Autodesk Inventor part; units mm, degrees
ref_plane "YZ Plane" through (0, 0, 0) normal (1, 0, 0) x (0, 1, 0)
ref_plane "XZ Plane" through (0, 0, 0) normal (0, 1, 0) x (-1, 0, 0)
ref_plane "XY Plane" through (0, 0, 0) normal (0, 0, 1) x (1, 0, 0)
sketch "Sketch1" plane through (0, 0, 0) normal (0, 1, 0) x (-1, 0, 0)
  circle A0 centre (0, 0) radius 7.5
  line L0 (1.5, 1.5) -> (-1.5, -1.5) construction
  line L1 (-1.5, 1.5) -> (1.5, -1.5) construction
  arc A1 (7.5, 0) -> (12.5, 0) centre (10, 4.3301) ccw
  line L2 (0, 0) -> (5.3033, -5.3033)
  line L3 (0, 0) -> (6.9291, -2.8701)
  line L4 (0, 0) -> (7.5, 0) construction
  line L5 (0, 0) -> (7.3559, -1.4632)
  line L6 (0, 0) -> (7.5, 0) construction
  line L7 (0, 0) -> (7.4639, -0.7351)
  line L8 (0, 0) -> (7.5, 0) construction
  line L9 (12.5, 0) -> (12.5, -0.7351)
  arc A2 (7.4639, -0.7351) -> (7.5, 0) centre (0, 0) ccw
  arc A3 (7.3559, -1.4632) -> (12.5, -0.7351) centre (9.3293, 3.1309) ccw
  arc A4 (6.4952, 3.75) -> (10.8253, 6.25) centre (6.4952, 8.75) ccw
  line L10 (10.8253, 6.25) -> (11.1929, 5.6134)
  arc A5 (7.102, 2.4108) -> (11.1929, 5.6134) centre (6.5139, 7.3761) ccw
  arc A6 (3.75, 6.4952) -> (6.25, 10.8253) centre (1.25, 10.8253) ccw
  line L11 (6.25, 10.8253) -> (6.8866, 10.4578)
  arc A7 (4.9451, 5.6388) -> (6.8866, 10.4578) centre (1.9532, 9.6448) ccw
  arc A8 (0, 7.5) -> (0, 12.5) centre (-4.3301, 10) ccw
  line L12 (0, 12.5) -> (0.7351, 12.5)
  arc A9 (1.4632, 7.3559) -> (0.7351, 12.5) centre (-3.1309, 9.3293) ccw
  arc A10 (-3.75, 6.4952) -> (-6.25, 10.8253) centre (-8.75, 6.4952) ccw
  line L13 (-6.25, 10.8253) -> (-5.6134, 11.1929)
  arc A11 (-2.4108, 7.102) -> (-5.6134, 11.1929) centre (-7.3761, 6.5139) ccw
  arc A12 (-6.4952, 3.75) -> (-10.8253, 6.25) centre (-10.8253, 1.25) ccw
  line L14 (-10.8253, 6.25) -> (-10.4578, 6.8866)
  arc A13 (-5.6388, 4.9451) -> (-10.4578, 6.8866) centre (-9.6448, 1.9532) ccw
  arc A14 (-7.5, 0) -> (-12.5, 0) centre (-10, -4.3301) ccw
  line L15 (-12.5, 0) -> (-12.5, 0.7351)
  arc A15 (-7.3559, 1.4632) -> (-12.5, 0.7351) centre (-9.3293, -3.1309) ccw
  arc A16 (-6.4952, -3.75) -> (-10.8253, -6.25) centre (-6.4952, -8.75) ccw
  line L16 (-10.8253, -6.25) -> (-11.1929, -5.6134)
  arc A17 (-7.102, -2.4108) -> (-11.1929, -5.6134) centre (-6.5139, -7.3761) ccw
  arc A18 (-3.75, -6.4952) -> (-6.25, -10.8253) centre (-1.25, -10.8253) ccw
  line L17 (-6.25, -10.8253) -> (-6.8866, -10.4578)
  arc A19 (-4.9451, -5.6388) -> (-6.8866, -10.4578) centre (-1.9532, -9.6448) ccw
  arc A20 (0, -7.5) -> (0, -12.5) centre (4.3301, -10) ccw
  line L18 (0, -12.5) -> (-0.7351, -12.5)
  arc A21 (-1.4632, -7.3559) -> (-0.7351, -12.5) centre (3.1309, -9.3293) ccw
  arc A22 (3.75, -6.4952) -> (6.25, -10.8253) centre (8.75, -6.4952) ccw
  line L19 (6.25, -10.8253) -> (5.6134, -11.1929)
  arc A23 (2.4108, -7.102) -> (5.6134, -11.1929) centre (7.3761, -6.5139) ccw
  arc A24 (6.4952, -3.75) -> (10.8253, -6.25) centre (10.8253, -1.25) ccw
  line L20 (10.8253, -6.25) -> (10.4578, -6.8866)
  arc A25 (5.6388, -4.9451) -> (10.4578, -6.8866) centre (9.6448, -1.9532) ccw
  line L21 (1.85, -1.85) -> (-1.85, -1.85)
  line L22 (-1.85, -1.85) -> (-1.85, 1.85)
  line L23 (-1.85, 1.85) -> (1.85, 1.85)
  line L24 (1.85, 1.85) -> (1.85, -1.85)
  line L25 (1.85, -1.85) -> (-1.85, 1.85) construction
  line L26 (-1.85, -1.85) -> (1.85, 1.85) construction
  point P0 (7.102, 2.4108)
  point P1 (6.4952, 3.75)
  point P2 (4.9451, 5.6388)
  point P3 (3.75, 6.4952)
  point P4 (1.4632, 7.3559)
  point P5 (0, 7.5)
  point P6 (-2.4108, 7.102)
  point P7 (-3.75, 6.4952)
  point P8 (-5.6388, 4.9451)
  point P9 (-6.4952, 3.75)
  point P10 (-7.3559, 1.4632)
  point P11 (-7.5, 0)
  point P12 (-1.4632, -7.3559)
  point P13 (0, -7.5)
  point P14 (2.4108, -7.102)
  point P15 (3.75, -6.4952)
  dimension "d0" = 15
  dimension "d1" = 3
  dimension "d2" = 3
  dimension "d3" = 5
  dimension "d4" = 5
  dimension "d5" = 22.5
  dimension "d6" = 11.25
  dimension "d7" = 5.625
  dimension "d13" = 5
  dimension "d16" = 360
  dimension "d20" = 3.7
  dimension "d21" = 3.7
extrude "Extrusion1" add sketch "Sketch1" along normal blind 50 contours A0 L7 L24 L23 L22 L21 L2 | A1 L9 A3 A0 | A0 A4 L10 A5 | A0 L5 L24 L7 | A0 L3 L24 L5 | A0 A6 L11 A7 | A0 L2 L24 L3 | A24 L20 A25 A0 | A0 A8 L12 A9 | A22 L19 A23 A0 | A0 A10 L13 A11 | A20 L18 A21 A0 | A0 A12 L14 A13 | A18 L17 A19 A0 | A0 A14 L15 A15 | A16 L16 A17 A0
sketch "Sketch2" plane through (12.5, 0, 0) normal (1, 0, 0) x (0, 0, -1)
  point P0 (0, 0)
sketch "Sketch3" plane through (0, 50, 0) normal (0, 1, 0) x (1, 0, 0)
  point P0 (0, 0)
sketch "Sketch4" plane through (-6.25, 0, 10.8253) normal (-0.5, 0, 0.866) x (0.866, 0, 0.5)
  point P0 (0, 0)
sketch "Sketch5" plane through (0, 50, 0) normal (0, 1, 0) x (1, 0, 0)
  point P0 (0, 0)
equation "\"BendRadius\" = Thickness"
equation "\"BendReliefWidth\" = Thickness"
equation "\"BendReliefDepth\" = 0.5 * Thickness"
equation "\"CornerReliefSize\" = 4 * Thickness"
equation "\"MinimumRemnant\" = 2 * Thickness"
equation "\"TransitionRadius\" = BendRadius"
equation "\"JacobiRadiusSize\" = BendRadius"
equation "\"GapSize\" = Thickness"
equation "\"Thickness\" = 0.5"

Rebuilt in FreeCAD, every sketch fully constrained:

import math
import FreeCAD as App
import Part
import Sketcher

V = App.Vector


def add_polygon(sketch, points):
    """Adds a closed chain of lines whose ends are joined by coincident constraints."""
    first, n = sketch.GeometryCount, len(points)
    for a, b in zip(points, points[1:] + points[:1]):
        sketch.addGeometry(Part.LineSegment(App.Vector(*a, 0), App.Vector(*b, 0)), False)
    for i in range(n):
        sketch.addConstraint(Sketcher.Constraint("Coincident", first + i, 2, first + (i + 1) % n, 1))

doc = App.newDocument("Part")
body = doc.addObject("PartDesign::Body", "Body")

# Sketch on XZ plane
sketch1 = body.newObject("Sketcher::SketchObject", "Sketch")
sketch1.AttachmentSupport = (doc.getObject("XZ_Plane"), [""])
sketch1.MapMode = "FlatFace"
sketch1.addGeometry(Part.ArcOfCircle(Part.Circle(V(0, 0, 0), V(0, 0, 1), 7.5), math.radians(-138.749971), math.radians(-119.999964)), False)  # 0
sketch1.addGeometry(Part.ArcOfCircle(Part.Circle(V(-9.6448, -1.9532, 0), V(0, 0, 1), 4.99995), math.radians(-99.357954), math.radians(-36.754388)), False)  # 1
sketch1.addGeometry(Part.LineSegment(V(-10.4578, -6.8866, 0), V(-10.8253, -6.25, 0)), False)  # 2
sketch1.addGeometry(Part.ArcOfCircle(Part.Circle(V(-10.8253, -1.25, 0), V(0, 0, 1), 4.999977), math.radians(-90), math.radians(-30.000155)), False)  # 3
sketch1.addGeometry(Part.ArcOfCircle(Part.Circle(V(0, 0, 0), V(0, 0, 1), 7.5), math.radians(-168.749846), math.radians(-150.000036)), False)  # 4
sketch1.addGeometry(Part.ArcOfCircle(Part.Circle(V(-9.3293, 3.1309, 0), V(0, 0, 1), 5.000006), math.radians(-129.356892), math.radians(-66.754013)), False)  # 5
sketch1.addGeometry(Part.LineSegment(V(-12.5, -0.7351, 0), V(-12.5, 0, 0)), False)  # 6
sketch1.addGeometry(Part.ArcOfCircle(Part.Circle(V(-10, 4.3301, 0), V(0, 0, 1), 4.999977), math.radians(-120.000155), math.radians(-59.999845)), False)  # 7
sketch1.addGeometry(Part.ArcOfCircle(Part.Circle(V(0, 0, 0), V(0, 0, 1), 7.5), math.radians(161.25003), math.radians(180)), False)  # 8
sketch1.addGeometry(Part.ArcOfCircle(Part.Circle(V(-6.5139, 7.3761, 0), V(0, 0, 1), 5.000007), math.radians(-159.357314), math.radians(-96.754757)), False)  # 9
sketch1.addGeometry(Part.LineSegment(V(-11.1929, 5.6134, 0), V(-10.8253, 6.25, 0)), False)  # 10
sketch1.addGeometry(Part.ArcOfCircle(Part.Circle(V(-6.4952, 8.75, 0), V(0, 0, 1), 5), math.radians(-149.999845), math.radians(-90)), False)  # 11
sketch1.addGeometry(Part.ArcOfCircle(Part.Circle(V(0, 0, 0), V(0, 0, 1), 7.5), math.radians(131.250029), math.radians(150.000036)), False)  # 12
sketch1.addGeometry(Part.ArcOfCircle(Part.Circle(V(-1.9532, 9.6448, 0), V(0, 0, 1), 4.99995), math.radians(170.642046), math.radians(233.245612)), False)  # 13
sketch1.addGeometry(Part.LineSegment(V(-6.8866, 10.4578, 0), V(-6.25, 10.8253, 0)), False)  # 14
sketch1.addGeometry(Part.ArcOfCircle(Part.Circle(V(-1.25, 10.8253, 0), V(0, 0, 1), 4.999977), math.radians(180), math.radians(239.999845)), False)  # 15
sketch1.addGeometry(Part.ArcOfCircle(Part.Circle(V(0, 0, 0), V(0, 0, 1), 7.5), math.radians(101.250154), math.radians(119.999964)), False)  # 16
sketch1.addGeometry(Part.ArcOfCircle(Part.Circle(V(3.1309, 9.3293, 0), V(0, 0, 1), 5.000006), math.radians(140.643108), math.radians(203.245987)), False)  # 17
sketch1.addGeometry(Part.LineSegment(V(-0.7351, 12.5, 0), V(0, 12.5, 0)), False)  # 18
sketch1.addGeometry(Part.ArcOfCircle(Part.Circle(V(4.3301, 10, 0), V(0, 0, 1), 4.999977), math.radians(149.999845), math.radians(210.000155)), False)  # 19
sketch1.addGeometry(Part.ArcOfCircle(Part.Circle(V(0, 0, 0), V(0, 0, 1), 7.5), math.radians(71.25003), math.radians(90)), False)  # 20
sketch1.addGeometry(Part.ArcOfCircle(Part.Circle(V(7.3761, 6.5139, 0), V(0, 0, 1), 5.000007), math.radians(110.642686), math.radians(173.245243)), False)  # 21
sketch1.addGeometry(Part.LineSegment(V(5.6134, 11.1929, 0), V(6.25, 10.8253, 0)), False)  # 22
sketch1.addGeometry(Part.ArcOfCircle(Part.Circle(V(8.75, 6.4952, 0), V(0, 0, 1), 5), math.radians(120.000155), math.radians(180)), False)  # 23
sketch1.addGeometry(Part.ArcOfCircle(Part.Circle(V(0, 0, 0), V(0, 0, 1), 7.5), math.radians(41.250029), math.radians(60.000036)), False)  # 24
sketch1.addGeometry(Part.ArcOfCircle(Part.Circle(V(9.6448, 1.9532, 0), V(0, 0, 1), 4.99995), math.radians(80.642046), math.radians(143.245612)), False)  # 25
sketch1.addGeometry(Part.LineSegment(V(10.4578, 6.8866, 0), V(10.8253, 6.25, 0)), False)  # 26
sketch1.addGeometry(Part.ArcOfCircle(Part.Circle(V(10.8253, 1.25, 0), V(0, 0, 1), 4.999977), math.radians(90), math.radians(149.999845)), False)  # 27
sketch1.addGeometry(Part.ArcOfCircle(Part.Circle(V(0, 0, 0), V(0, 0, 1), 7.5), math.radians(11.250154), math.radians(29.999964)), False)  # 28
sketch1.addGeometry(Part.ArcOfCircle(Part.Circle(V(9.3293, -3.1309, 0), V(0, 0, 1), 5.000006), math.radians(50.643108), math.radians(113.245987)), False)  # 29
sketch1.addGeometry(Part.LineSegment(V(12.5, 0.7351, 0), V(12.5, 0, 0)), False)  # 30
sketch1.addGeometry(Part.ArcOfCircle(Part.Circle(V(10, -4.3301, 0), V(0, 0, 1), 4.999977), math.radians(59.999845), math.radians(120.000155)), False)  # 31
sketch1.addGeometry(Part.ArcOfCircle(Part.Circle(V(0, 0, 0), V(0, 0, 1), 7.5), math.radians(-18.74997), math.radians(0)), False)  # 32
sketch1.addGeometry(Part.ArcOfCircle(Part.Circle(V(6.5139, -7.3761, 0), V(0, 0, 1), 5.000007), math.radians(20.642686), math.radians(83.245243)), False)  # 33
sketch1.addGeometry(Part.LineSegment(V(11.1929, -5.6134, 0), V(10.8253, -6.25, 0)), False)  # 34
sketch1.addGeometry(Part.ArcOfCircle(Part.Circle(V(6.4952, -8.75, 0), V(0, 0, 1), 5), math.radians(30.000155), math.radians(90)), False)  # 35
sketch1.addGeometry(Part.ArcOfCircle(Part.Circle(V(0, 0, 0), V(0, 0, 1), 7.5), math.radians(-48.749971), math.radians(-29.999964)), False)  # 36
sketch1.addGeometry(Part.ArcOfCircle(Part.Circle(V(1.9532, -9.6448, 0), V(0, 0, 1), 4.99995), math.radians(-9.357954), math.radians(53.245612)), False)  # 37
sketch1.addGeometry(Part.LineSegment(V(6.8866, -10.4578, 0), V(6.25, -10.8253, 0)), False)  # 38
sketch1.addGeometry(Part.ArcOfCircle(Part.Circle(V(1.25, -10.8253, 0), V(0, 0, 1), 4.999977), math.radians(0), math.radians(59.999845)), False)  # 39
sketch1.addGeometry(Part.ArcOfCircle(Part.Circle(V(0, 0, 0), V(0, 0, 1), 7.5), math.radians(-78.749846), math.radians(-60.000036)), False)  # 40
sketch1.addGeometry(Part.ArcOfCircle(Part.Circle(V(-3.1309, -9.3293, 0), V(0, 0, 1), 5.000006), math.radians(-39.356892), math.radians(23.245987)), False)  # 41
sketch1.addGeometry(Part.LineSegment(V(0.7351, -12.5, 0), V(0, -12.5, 0)), False)  # 42
sketch1.addGeometry(Part.ArcOfCircle(Part.Circle(V(-4.3301, -10, 0), V(0, 0, 1), 4.999977), math.radians(-30.000155), math.radians(30.000155)), False)  # 43
sketch1.addGeometry(Part.ArcOfCircle(Part.Circle(V(0, 0, 0), V(0, 0, 1), 7.5), math.radians(-108.74997), math.radians(-90)), False)  # 44
sketch1.addGeometry(Part.ArcOfCircle(Part.Circle(V(-7.3761, -6.5139, 0), V(0, 0, 1), 5.000007), math.radians(-69.357314), math.radians(-6.754757)), False)  # 45
sketch1.addGeometry(Part.LineSegment(V(-5.6134, -11.1929, 0), V(-6.25, -10.8253, 0)), False)  # 46
sketch1.addGeometry(Part.ArcOfCircle(Part.Circle(V(-8.75, -6.4952, 0), V(0, 0, 1), 5), math.radians(-59.999845), math.radians(0)), False)  # 47
add_polygon(sketch1, [(-1.85, 1.85), (-1.85, -1.85), (1.85, -1.85), (1.85, 1.85)])  # lines 48-51
sketch1.addConstraint([
    Sketcher.Constraint("Coincident", 0, 1, 1, 2),
    Sketcher.Constraint("Coincident", 1, 1, 2, 1),
    Sketcher.Constraint("Coincident", 2, 2, 3, 1),
    Sketcher.Constraint("Coincident", 3, 2, 4, 2),
    Sketcher.Constraint("Coincident", 4, 1, 5, 2),
    Sketcher.Constraint("Coincident", 5, 1, 6, 1),
    Sketcher.Constraint("Coincident", 6, 2, 7, 1),
    Sketcher.Constraint("Coincident", 7, 2, 8, 2),
    Sketcher.Constraint("Coincident", 8, 1, 9, 2),
    Sketcher.Constraint("Coincident", 9, 1, 10, 1),
    Sketcher.Constraint("Coincident", 10, 2, 11, 1),
    Sketcher.Constraint("Coincident", 11, 2, 12, 2),
    Sketcher.Constraint("Coincident", 12, 1, 13, 2),
    Sketcher.Constraint("Coincident", 13, 1, 14, 1),
    Sketcher.Constraint("Coincident", 14, 2, 15, 1),
    Sketcher.Constraint("Coincident", 15, 2, 16, 2),
    Sketcher.Constraint("Coincident", 16, 1, 17, 2),
    Sketcher.Constraint("Coincident", 17, 1, 18, 1),
    Sketcher.Constraint("Coincident", 18, 2, 19, 1),
    Sketcher.Constraint("Coincident", 19, 2, 20, 2),
    Sketcher.Constraint("Coincident", 20, 1, 21, 2),
    Sketcher.Constraint("Coincident", 21, 1, 22, 1),
    Sketcher.Constraint("Coincident", 22, 2, 23, 1),
    Sketcher.Constraint("Coincident", 23, 2, 24, 2),
    Sketcher.Constraint("Coincident", 24, 1, 25, 2),
    Sketcher.Constraint("Coincident", 25, 1, 26, 1),
    Sketcher.Constraint("Coincident", 26, 2, 27, 1),
    Sketcher.Constraint("Coincident", 27, 2, 28, 2),
    Sketcher.Constraint("Coincident", 28, 1, 29, 2),
    Sketcher.Constraint("Coincident", 29, 1, 30, 1),
    Sketcher.Constraint("Coincident", 30, 2, 31, 1),
    Sketcher.Constraint("Coincident", 31, 2, 32, 2),
    Sketcher.Constraint("Coincident", 32, 1, 33, 2),
    Sketcher.Constraint("Coincident", 33, 1, 34, 1),
    Sketcher.Constraint("Coincident", 34, 2, 35, 1),
    Sketcher.Constraint("Coincident", 35, 2, 36, 2),
    Sketcher.Constraint("Coincident", 36, 1, 37, 2),
    Sketcher.Constraint("Coincident", 37, 1, 38, 1),
    Sketcher.Constraint("Coincident", 38, 2, 39, 1),
    Sketcher.Constraint("Coincident", 39, 2, 40, 2),
    Sketcher.Constraint("Coincident", 40, 1, 41, 2),
    Sketcher.Constraint("Coincident", 41, 1, 42, 1),
    Sketcher.Constraint("Coincident", 42, 2, 43, 1),
    Sketcher.Constraint("Coincident", 43, 2, 44, 2),
    Sketcher.Constraint("Coincident", 44, 1, 45, 2),
    Sketcher.Constraint("Coincident", 45, 1, 46, 1),
    Sketcher.Constraint("Coincident", 46, 2, 47, 1),
    Sketcher.Constraint("Coincident", 47, 2, 0, 2),
    Sketcher.Constraint("Vertical", 6),
    Sketcher.Constraint("Horizontal", 18),
    Sketcher.Constraint("Vertical", 30),
    Sketcher.Constraint("Horizontal", 42),
    Sketcher.Constraint("Vertical", 48),
    Sketcher.Constraint("Horizontal", 49),
    Sketcher.Constraint("Vertical", 50),
    Sketcher.Constraint("Horizontal", 51),
    Sketcher.Constraint("Coincident", 0, 3, -1, 1),
    Sketcher.Constraint("Coincident", 4, 3, -1, 1),
    Sketcher.Constraint("Coincident", 8, 3, -1, 1),
    Sketcher.Constraint("Coincident", 12, 3, -1, 1),
    Sketcher.Constraint("Coincident", 16, 3, -1, 1),
    Sketcher.Constraint("Coincident", 20, 3, -1, 1),
    Sketcher.Constraint("Coincident", 24, 3, -1, 1),
    Sketcher.Constraint("Coincident", 28, 3, -1, 1),
    Sketcher.Constraint("Coincident", 32, 3, -1, 1),
    Sketcher.Constraint("Coincident", 36, 3, -1, 1),
    Sketcher.Constraint("Coincident", 40, 3, -1, 1),
    Sketcher.Constraint("Coincident", 44, 3, -1, 1),
    Sketcher.Constraint("Equal", 1, 3),
    Sketcher.Constraint("Equal", 0, 4),
    Sketcher.Constraint("Equal", 3, 5),
    Sketcher.Constraint("Equal", 5, 7),
    Sketcher.Constraint("Equal", 4, 8),
    Sketcher.Constraint("Equal", 7, 9),
    Sketcher.Constraint("Equal", 9, 11),
    Sketcher.Constraint("Equal", 8, 12),
    Sketcher.Constraint("Equal", 11, 13),
    Sketcher.Constraint("Equal", 13, 15),
    Sketcher.Constraint("Equal", 12, 16),
    Sketcher.Constraint("Equal", 15, 17),
    Sketcher.Constraint("Equal", 17, 19),
    Sketcher.Constraint("Equal", 16, 20),
    Sketcher.Constraint("Equal", 19, 21),
    Sketcher.Constraint("Equal", 21, 23),
    Sketcher.Constraint("Equal", 20, 24),
    Sketcher.Constraint("Equal", 23, 25),
    Sketcher.Constraint("Equal", 25, 27),
    Sketcher.Constraint("Equal", 24, 28),
    Sketcher.Constraint("Equal", 27, 29),
    Sketcher.Constraint("Equal", 29, 31),
    Sketcher.Constraint("Equal", 28, 32),
    Sketcher.Constraint("Equal", 31, 33),
    Sketcher.Constraint("Equal", 33, 35),
    Sketcher.Constraint("Equal", 32, 36),
    Sketcher.Constraint("Equal", 35, 37),
    Sketcher.Constraint("Equal", 37, 39),
    Sketcher.Constraint("Equal", 36, 40),
    Sketcher.Constraint("Equal", 39, 41),
    Sketcher.Constraint("Equal", 41, 43),
    Sketcher.Constraint("Equal", 40, 44),
    Sketcher.Constraint("Equal", 43, 45),
    Sketcher.Constraint("Equal", 45, 47),
    Sketcher.Constraint("Symmetric", 1, 3, 25, 3, -1, 1),
    Sketcher.Constraint("Symmetric", 3, 3, 27, 3, -1, 1),
    Sketcher.Constraint("Symmetric", 5, 3, 29, 3, -1, 1),
    Sketcher.Constraint("Symmetric", 7, 3, 31, 3, -1, 1),
    Sketcher.Constraint("Symmetric", 9, 3, 33, 3, -1, 1),
    Sketcher.Constraint("Symmetric", 11, 3, 35, 3, -1, 1),
    Sketcher.Constraint("Symmetric", 13, 3, 37, 3, -1, 1),
    Sketcher.Constraint("Symmetric", 15, 3, 39, 3, -1, 1),
    Sketcher.Constraint("Symmetric", 17, 3, 41, 3, -1, 1),
    Sketcher.Constraint("Symmetric", 19, 3, 43, 3, -1, 1),
    Sketcher.Constraint("Symmetric", 21, 3, 45, 3, -1, 1),
    Sketcher.Constraint("Symmetric", 23, 3, 47, 3, -1, 1),
    Sketcher.Constraint("Symmetric", 48, 2, 50, 2, -1, 1),
    Sketcher.Constraint("Symmetric", 14, 2, 22, 2, -2),
    Sketcher.Constraint("Symmetric", 10, 2, 26, 2, -2),
    Sketcher.Constraint("Symmetric", 6, 2, 30, 2, -2),
    Sketcher.Constraint("Symmetric", 2, 2, 34, 2, -2),
    Sketcher.Constraint("Symmetric", 38, 2, 46, 2, -2),
    Sketcher.Constraint("Symmetric", 18, 2, 42, 2, -1),
    Sketcher.Constraint("PointOnObject", 7, 2, -1),
    Sketcher.Constraint("PointOnObject", 19, 2, -2),
    Sketcher.Constraint("Perpendicular", 2, 14),
    Sketcher.Constraint("Perpendicular", 10, 22),
    Sketcher.Constraint("Perpendicular", 14, 26),
    Sketcher.Constraint("Perpendicular", 22, 34),
    Sketcher.Constraint("Perpendicular", 26, 38),
    Sketcher.Constraint("Perpendicular", 34, 46),
    Sketcher.Constraint("Horizontal", 15, 3, 14, 2),
    Sketcher.Constraint("Horizontal", 23, 3, 15, 2),
    Sketcher.Constraint("Horizontal", 11, 2, 27, 2),
    Sketcher.Constraint("Vertical", 3, 3, 2, 2),
    Sketcher.Constraint("Equal", 42, 6),
    Sketcher.Constraint("Equal", 51, 48),
    Sketcher.Constraint("Equal", 2, 10),
    Sketcher.Constraint("Equal", 10, 14),
    Sketcher.Constraint("Equal", 14, 22),
    Sketcher.Constraint("Radius", 1, 5.0),
    Sketcher.Constraint("Radius", 0, 7.5),
    Sketcher.Constraint("DistanceX", 49, 1, 49, 2, 3.7),
    Sketcher.Constraint("DistanceX", 7, 3, -1, 1, 10.0),
    Sketcher.Constraint("DistanceY", -1, 1, 19, 3, 10.0),
    Sketcher.Constraint("DistanceX", 18, 1, 18, 2, 0.735),
    Sketcher.Constraint("DistanceY", 3, 3, -1, 1, 1.25),
    Sketcher.Constraint("DistanceY", -1, 1, 11, 3, 8.75),
    Sketcher.Constraint("DistanceX", 15, 3, -1, 1, 1.25),
    Sketcher.Constraint("DistanceX", -1, 1, 23, 3, 8.75),
    Sketcher.Constraint("Distance", 2, 0.735),
    Sketcher.Constraint("DistanceY", -1, 1, 5, 3, 3.131),
    Sketcher.Constraint("DistanceX", 9, 3, -1, 1, 6.514),
    Sketcher.Constraint("DistanceY", -1, 1, 9, 3, 7.376),
    Sketcher.Constraint("DistanceX", -1, 1, 17, 3, 3.131),
    Sketcher.Constraint("DistanceX", -1, 1, 21, 3, 7.376),
    Sketcher.Constraint("DistanceY", 0, 1, -1, 1, 4.945),
    Sketcher.Constraint("DistanceX", 12, 1, -1, 1, 4.945),
    Sketcher.Constraint("DistanceX", 1, 3, -1, 1, 9.6448),
])
pad1 = body.newObject("PartDesign::Pad", "Pad")
pad1.Profile = sketch1
pad1.Length = 50
pad1.Reversed = True

doc.recompute()
